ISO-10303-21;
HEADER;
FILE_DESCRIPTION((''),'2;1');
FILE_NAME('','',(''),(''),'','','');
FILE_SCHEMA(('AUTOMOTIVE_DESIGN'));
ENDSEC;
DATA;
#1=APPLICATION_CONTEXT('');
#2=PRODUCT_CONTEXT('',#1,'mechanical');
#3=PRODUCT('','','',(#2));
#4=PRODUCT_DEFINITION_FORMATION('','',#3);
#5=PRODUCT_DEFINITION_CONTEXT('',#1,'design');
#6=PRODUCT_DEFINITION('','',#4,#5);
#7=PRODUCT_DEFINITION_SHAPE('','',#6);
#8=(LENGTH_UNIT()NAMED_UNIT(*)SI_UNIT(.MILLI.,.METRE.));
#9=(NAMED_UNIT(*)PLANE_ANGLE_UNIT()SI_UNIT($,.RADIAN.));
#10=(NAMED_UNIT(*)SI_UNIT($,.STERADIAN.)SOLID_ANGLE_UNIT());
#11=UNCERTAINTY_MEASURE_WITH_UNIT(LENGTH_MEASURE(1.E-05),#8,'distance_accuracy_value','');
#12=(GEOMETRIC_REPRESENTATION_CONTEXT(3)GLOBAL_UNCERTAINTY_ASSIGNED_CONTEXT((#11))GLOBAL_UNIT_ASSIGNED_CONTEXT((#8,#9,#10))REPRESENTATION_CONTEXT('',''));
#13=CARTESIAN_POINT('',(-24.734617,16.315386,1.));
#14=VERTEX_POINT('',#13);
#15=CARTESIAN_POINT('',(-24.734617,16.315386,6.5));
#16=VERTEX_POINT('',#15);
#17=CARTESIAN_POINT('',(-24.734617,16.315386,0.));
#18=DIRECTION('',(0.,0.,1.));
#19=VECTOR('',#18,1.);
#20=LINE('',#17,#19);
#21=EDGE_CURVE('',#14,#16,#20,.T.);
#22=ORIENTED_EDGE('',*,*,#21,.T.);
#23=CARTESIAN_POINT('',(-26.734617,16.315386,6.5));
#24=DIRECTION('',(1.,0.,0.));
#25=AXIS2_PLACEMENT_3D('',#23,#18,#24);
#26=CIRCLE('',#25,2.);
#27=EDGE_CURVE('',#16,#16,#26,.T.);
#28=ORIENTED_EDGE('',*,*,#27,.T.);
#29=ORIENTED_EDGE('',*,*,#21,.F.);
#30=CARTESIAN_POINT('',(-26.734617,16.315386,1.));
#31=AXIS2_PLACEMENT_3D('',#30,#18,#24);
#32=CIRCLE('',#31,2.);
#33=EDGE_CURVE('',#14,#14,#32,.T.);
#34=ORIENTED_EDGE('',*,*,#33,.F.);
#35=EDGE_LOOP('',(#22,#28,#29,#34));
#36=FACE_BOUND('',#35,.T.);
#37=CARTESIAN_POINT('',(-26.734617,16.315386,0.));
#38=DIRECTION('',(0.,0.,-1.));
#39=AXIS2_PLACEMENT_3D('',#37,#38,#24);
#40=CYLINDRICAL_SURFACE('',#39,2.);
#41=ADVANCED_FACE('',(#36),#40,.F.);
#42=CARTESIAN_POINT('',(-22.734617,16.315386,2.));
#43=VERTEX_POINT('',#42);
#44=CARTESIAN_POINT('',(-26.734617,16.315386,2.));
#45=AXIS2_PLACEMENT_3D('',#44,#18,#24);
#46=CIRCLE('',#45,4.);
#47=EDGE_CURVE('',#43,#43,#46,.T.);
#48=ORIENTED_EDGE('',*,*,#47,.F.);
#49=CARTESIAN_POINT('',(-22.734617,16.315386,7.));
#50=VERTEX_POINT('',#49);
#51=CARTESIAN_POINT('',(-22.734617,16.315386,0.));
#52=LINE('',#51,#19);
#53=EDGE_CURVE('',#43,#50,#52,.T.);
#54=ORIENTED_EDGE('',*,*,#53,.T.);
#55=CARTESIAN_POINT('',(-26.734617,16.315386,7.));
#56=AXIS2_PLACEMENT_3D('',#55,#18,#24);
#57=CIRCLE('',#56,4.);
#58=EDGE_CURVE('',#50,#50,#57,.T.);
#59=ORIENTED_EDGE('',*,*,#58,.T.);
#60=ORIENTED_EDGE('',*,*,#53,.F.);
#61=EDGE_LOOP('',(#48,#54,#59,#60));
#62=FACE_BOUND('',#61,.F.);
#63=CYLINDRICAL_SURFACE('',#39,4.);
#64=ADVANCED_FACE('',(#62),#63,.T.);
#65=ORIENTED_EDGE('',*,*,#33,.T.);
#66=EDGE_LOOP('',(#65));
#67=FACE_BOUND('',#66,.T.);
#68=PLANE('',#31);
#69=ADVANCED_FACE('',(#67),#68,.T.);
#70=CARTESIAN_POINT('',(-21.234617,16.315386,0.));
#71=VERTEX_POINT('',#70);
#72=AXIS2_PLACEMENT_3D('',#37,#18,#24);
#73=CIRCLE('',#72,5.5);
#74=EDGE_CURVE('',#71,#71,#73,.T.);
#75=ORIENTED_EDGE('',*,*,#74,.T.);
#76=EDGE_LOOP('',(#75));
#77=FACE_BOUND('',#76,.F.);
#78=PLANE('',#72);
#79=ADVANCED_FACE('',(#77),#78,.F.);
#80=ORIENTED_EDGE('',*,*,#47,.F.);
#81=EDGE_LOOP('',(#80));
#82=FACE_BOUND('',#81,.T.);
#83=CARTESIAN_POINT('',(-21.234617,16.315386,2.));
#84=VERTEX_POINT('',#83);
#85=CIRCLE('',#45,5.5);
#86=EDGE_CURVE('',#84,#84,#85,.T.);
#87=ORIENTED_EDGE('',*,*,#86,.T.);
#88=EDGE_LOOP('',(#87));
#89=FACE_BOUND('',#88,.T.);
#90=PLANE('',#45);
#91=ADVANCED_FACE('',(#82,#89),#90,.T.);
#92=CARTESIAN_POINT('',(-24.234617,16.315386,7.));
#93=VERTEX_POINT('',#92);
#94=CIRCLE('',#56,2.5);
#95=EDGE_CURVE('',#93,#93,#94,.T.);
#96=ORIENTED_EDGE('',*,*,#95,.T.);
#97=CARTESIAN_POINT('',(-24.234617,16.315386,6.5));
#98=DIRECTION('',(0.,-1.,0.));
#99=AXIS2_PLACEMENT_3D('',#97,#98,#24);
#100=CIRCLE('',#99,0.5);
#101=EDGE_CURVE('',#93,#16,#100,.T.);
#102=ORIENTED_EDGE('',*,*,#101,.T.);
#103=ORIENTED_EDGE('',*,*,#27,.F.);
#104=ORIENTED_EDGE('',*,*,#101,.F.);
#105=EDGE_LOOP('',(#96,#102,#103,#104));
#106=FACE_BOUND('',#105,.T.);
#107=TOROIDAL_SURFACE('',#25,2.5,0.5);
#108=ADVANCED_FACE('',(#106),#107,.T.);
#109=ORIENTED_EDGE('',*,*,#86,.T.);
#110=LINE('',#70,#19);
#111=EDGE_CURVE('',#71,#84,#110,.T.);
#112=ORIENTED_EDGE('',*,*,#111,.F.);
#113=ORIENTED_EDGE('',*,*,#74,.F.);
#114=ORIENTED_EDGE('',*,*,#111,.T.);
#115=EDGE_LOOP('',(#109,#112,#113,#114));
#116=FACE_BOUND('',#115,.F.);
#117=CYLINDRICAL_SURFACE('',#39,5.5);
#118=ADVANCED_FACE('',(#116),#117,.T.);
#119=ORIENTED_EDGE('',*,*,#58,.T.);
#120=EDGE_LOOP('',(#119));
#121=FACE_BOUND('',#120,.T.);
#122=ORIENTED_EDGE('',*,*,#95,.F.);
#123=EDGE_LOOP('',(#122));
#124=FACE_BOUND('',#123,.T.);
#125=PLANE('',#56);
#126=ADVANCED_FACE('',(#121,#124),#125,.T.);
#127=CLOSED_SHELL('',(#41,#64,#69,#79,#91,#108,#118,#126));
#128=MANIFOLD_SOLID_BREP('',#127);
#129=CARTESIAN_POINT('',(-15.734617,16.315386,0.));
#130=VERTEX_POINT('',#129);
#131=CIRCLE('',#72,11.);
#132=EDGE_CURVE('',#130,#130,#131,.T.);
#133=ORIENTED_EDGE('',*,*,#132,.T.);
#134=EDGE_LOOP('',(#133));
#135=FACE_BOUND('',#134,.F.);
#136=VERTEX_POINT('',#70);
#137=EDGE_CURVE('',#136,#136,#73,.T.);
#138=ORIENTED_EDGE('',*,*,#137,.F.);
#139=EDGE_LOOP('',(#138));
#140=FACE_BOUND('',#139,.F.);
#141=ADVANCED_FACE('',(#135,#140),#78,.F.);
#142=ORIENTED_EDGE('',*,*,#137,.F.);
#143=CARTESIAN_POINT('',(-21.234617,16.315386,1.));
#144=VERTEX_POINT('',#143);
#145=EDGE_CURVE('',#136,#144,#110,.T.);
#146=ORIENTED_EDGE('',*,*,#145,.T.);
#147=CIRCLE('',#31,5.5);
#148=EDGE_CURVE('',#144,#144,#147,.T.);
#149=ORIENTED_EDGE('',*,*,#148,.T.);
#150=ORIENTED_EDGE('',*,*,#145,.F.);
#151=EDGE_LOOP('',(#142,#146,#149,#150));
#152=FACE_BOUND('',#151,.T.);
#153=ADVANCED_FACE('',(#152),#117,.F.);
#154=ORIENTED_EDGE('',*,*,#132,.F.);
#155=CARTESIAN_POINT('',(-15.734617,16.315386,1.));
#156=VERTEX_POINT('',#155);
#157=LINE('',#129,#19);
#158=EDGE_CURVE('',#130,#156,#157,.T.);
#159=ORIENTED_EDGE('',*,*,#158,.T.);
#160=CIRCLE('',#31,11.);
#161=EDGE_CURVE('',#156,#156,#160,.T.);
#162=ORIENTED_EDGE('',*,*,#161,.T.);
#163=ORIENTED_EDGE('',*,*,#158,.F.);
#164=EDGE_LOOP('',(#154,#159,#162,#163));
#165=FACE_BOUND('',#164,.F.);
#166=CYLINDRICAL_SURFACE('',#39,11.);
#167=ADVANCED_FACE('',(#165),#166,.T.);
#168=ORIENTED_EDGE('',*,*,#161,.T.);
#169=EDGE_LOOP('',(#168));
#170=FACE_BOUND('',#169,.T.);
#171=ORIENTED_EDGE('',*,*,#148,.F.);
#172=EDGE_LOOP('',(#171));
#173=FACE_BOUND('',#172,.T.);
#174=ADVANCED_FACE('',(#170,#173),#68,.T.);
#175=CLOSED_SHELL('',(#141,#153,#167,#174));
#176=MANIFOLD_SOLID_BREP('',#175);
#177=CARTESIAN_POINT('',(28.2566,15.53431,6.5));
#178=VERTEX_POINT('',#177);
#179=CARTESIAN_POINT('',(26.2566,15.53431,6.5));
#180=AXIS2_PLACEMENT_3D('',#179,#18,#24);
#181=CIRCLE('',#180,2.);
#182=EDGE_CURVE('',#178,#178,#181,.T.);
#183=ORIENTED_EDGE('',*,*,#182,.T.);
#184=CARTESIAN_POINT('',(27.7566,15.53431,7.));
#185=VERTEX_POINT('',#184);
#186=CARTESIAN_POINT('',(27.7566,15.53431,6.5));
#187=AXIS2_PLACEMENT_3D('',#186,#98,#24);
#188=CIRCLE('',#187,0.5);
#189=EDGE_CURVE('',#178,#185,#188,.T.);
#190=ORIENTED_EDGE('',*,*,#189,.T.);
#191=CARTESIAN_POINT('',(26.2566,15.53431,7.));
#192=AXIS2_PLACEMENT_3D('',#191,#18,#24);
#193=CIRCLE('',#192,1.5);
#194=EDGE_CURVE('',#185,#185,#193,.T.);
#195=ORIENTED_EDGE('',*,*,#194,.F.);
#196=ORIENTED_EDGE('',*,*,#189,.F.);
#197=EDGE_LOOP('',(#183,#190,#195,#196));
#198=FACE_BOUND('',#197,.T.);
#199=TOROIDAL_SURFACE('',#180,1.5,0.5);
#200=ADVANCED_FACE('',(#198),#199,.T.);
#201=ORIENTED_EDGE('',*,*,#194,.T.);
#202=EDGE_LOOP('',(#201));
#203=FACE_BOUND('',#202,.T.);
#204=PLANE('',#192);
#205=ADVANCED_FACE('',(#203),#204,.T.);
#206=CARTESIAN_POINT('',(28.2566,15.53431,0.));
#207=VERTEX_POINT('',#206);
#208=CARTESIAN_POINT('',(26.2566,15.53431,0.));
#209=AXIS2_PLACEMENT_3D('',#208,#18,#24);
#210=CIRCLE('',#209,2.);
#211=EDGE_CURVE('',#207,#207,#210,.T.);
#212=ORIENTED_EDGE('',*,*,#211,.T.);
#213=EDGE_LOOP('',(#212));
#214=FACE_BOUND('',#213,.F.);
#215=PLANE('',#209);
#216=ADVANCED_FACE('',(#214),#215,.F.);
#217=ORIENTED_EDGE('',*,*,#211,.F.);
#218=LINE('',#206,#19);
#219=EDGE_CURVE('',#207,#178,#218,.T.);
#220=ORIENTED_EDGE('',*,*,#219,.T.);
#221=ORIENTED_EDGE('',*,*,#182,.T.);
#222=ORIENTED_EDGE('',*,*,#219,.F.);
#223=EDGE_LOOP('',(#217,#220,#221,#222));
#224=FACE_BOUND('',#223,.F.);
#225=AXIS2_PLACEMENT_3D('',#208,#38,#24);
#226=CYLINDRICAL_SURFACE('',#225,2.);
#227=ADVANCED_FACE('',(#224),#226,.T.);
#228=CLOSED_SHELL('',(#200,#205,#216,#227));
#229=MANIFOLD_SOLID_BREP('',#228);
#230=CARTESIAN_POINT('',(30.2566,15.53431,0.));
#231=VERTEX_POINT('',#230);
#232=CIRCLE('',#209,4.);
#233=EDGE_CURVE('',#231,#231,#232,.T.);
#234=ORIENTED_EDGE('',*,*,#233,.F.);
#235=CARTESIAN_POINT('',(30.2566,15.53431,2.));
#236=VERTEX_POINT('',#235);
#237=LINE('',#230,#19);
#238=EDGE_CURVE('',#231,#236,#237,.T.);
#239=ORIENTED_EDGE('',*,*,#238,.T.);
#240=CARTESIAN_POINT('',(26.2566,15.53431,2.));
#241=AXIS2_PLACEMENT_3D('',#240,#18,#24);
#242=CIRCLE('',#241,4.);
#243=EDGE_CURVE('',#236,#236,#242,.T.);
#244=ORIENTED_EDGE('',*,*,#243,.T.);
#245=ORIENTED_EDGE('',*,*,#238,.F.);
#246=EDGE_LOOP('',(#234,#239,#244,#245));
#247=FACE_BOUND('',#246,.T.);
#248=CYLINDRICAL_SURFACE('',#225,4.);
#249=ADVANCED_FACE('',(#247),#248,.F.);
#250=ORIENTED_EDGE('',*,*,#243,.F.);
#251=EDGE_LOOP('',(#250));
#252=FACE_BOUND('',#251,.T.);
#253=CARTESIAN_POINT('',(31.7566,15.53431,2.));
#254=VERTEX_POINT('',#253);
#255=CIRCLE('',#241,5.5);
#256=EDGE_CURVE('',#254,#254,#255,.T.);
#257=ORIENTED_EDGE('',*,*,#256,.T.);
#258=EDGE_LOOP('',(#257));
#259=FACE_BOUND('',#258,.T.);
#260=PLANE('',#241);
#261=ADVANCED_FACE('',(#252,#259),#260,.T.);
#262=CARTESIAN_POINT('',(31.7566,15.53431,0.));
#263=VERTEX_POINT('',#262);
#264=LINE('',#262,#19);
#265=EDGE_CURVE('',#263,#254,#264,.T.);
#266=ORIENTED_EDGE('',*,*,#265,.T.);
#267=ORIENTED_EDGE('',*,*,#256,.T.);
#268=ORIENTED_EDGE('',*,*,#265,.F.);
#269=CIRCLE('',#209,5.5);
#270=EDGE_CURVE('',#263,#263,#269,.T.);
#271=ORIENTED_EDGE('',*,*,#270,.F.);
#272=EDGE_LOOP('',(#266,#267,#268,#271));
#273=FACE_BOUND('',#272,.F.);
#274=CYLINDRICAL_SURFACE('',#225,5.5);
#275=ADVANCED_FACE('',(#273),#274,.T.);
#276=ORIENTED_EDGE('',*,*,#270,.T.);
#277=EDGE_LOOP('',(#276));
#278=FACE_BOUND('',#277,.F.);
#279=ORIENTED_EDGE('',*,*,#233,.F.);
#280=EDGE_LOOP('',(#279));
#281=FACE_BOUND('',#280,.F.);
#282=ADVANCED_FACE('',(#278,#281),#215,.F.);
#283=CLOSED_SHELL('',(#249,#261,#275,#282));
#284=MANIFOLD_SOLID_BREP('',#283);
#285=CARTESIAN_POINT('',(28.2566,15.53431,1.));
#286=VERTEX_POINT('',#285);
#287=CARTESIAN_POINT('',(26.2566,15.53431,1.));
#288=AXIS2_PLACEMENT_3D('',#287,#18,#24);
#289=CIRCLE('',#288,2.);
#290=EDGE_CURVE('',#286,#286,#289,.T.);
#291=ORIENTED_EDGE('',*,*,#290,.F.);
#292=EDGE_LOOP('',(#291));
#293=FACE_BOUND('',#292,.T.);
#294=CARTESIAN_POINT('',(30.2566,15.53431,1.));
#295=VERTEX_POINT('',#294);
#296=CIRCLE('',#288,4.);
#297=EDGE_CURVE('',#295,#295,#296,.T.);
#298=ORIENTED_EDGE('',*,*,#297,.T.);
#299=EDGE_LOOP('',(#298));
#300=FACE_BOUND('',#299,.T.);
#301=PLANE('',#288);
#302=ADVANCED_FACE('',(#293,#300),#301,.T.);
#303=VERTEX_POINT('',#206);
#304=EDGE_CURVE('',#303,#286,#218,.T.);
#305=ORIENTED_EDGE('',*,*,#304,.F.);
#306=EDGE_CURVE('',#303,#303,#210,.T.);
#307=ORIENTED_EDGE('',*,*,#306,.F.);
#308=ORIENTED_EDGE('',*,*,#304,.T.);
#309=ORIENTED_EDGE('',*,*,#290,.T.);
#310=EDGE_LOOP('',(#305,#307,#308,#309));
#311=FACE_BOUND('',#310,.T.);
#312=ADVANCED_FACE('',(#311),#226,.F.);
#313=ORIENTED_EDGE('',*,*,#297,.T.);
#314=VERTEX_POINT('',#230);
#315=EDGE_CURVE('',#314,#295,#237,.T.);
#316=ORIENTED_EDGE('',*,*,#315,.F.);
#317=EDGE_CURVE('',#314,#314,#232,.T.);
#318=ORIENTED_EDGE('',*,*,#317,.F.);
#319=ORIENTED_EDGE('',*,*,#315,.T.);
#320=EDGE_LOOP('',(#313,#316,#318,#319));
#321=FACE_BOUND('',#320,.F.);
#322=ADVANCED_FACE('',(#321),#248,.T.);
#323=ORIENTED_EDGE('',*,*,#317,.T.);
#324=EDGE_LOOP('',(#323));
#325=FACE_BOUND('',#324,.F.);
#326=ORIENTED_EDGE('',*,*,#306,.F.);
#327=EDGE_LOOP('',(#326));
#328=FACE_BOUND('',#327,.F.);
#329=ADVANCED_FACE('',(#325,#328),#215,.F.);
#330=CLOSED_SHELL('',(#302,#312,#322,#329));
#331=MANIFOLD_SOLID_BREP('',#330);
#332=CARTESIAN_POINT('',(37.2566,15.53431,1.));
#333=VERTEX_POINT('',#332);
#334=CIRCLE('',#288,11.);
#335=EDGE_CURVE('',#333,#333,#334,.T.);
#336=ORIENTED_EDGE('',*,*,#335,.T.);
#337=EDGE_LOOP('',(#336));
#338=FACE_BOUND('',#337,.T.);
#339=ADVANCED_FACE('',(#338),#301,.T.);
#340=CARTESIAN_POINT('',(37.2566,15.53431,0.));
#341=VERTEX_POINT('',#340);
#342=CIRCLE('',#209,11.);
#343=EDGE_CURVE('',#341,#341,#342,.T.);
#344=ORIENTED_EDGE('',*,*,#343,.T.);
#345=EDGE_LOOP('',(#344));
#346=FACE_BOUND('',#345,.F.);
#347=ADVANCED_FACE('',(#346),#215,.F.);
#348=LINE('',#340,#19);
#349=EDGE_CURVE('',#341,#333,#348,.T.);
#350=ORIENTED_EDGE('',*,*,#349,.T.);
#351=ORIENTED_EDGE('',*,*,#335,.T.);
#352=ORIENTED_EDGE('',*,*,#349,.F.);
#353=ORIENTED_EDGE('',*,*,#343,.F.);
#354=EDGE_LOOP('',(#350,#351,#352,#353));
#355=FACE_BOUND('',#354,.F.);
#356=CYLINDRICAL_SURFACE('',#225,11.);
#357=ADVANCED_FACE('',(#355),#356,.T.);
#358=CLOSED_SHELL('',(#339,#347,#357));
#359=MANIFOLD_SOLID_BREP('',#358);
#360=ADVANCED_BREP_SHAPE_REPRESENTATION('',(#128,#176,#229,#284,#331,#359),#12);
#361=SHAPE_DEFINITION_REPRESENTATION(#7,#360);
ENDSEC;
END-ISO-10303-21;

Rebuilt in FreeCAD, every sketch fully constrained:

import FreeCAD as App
import Part
import Sketcher
from FreeCAD import Vector
Q = App.Units.Quantity


def edges_at(feature, points):
    """Names of the edges that pass closest to the given points."""
    edges = feature.Shape.Edges
    near = lambda p: min(range(len(edges)), key=lambda i: edges[i].distToShape(Part.Vertex(*p))[0])
    return sorted({f"Edge{near(p) + 1}" for p in points})

doc = App.newDocument("Part")
body = doc.addObject("PartDesign::Body", "Body")

# Sketch on XY plane
sketch1 = body.newObject("Sketcher::SketchObject", "Sketch")
sketch1.AttachmentSupport = (doc.getObject("XY_Plane"), [""])
sketch1.MapMode = "FlatFace"
sketch1.addGeometry([
    Part.Circle(Vector(-27, 16, 0), Vector(0, 0, 1), 11),
    Part.Circle(Vector(-27, 16, 0), Vector(0, 0, 1), 6),
], False)
sketch1.addConstraint([
    Sketcher.Constraint("Coincident", 1, 3, 0, 3),
    Sketcher.Constraint("Diameter", 0, Q("22 mm")),
    Sketcher.Constraint("Diameter", 1, Q("11 mm")),
    Sketcher.Constraint("DistanceX", 0, 3, -1, 1, Q("26.734617 mm")),
    Sketcher.Constraint("DistanceY", -1, 1, 0, 3, Q("16.315386 mm")),
])
pad1 = body.newObject("PartDesign::Pad", "Pad")
pad1.Profile = sketch1
pad1.Length = 1
body2 = doc.addObject("PartDesign::Body", "Body001")

# Sketch on XY plane
sketch2 = body2.newObject("Sketcher::SketchObject", "Sketch001")
sketch2.AttachmentSupport = (doc.getObject("XY_Plane001"), [""])
sketch2.MapMode = "FlatFace"
sketch2.addGeometry(Part.Circle(Vector(26, 16, 0), Vector(0, 0, 1), 11), False)
sketch2.addConstraint([
    Sketcher.Constraint("Diameter", 0, Q("22 mm")),
    Sketcher.Constraint("DistanceX", -1, 1, 0, 3, Q("26.2566 mm")),
    Sketcher.Constraint("DistanceY", -1, 1, 0, 3, Q("15.53431 mm")),
])
pad2 = body2.newObject("PartDesign::Pad", "Pad001")
pad2.Profile = sketch2
pad2.Length = 1
body3 = doc.addObject("PartDesign::Body", "Body002")

# Sketch on XY plane
sketch3 = body3.newObject("Sketcher::SketchObject", "Sketch002")
sketch3.AttachmentSupport = (doc.getObject("XY_Plane002"), [""])
sketch3.MapMode = "FlatFace"
sketch3.addGeometry([
    Part.Circle(Vector(-26.7, 16.3, 0), Vector(0, 0, 1), 5.5),
    Part.Circle(Vector(-26.7, 16.3, 0), Vector(0, 0, 1), 4),
], False)
sketch3.addConstraint([
    Sketcher.Constraint("Coincident", 1, 3, 0, 3),
    Sketcher.Constraint("Diameter", 0, Q("11 mm")),
    Sketcher.Constraint("Diameter", 1, Q("8 mm")),
    Sketcher.Constraint("DistanceX", 0, 3, -1, 1, Q("26.734617 mm")),
    Sketcher.Constraint("DistanceY", -1, 1, 0, 3, Q("16.315386 mm")),
])
pad3 = body3.newObject("PartDesign::Pad", "Pad002")
pad3.Profile = sketch3
pad3.Length = 2

# Sketch on XY plane
sketch4 = body3.newObject("Sketcher::SketchObject", "Sketch003")
sketch4.AttachmentSupport = (doc.getObject("XY_Plane002"), [""])
sketch4.MapMode = "FlatFace"
sketch4.addGeometry([
    Part.Circle(Vector(-26.7, 16.3, 0), Vector(0, 0, 1), 4),
    Part.Circle(Vector(-26.7, 16.3, 0), Vector(0, 0, 1), 2),
], False)
sketch4.addConstraint([
    Sketcher.Constraint("Coincident", 1, 3, 0, 3),
    Sketcher.Constraint("Diameter", 0, Q("8 mm")),
    Sketcher.Constraint("Diameter", 1, Q("4 mm")),
    Sketcher.Constraint("DistanceX", 0, 3, -1, 1, Q("26.734617 mm")),
    Sketcher.Constraint("DistanceY", -1, 1, 0, 3, Q("16.315386 mm")),
])
pad4 = body3.newObject("PartDesign::Pad", "Pad003")
pad4.Profile = sketch4
pad4.Length = 7

# Sketch on XY plane
sketch5 = body3.newObject("Sketcher::SketchObject", "Sketch004")
sketch5.AttachmentSupport = (doc.getObject("XY_Plane002"), [""])
sketch5.MapMode = "FlatFace"
sketch5.addGeometry(Part.Circle(Vector(-26.7, 16.3, 0), Vector(0, 0, 1), 2), False)
sketch5.addConstraint([
    Sketcher.Constraint("Diameter", 0, Q("4 mm")),
    Sketcher.Constraint("DistanceX", 0, 3, -1, 1, Q("26.734617 mm")),
    Sketcher.Constraint("DistanceY", -1, 1, 0, 3, Q("16.315386 mm")),
])
pad5 = body3.newObject("PartDesign::Pad", "Pad004")
pad5.Profile = sketch5
pad5.Length = 1
doc.recompute()

fillet = body3.newObject("PartDesign::Fillet", "Fillet")
fillet.Base = (pad5, edges_at(pad5, [(-28.735, 16.315, 7)]))
fillet.Radius = 0.5
body4 = doc.addObject("PartDesign::Body", "Body003")

# Sketch on XY plane
sketch6 = body4.newObject("Sketcher::SketchObject", "Sketch005")
sketch6.AttachmentSupport = (doc.getObject("XY_Plane003"), [""])
sketch6.MapMode = "FlatFace"
sketch6.addGeometry([
    Part.Circle(Vector(26.3, 15.5, 0), Vector(0, 0, 1), 5.5),
    Part.Circle(Vector(26.3, 15.5, 0), Vector(0, 0, 1), 4),
], False)
sketch6.addConstraint([
    Sketcher.Constraint("Coincident", 1, 3, 0, 3),
    Sketcher.Constraint("Diameter", 0, Q("11 mm")),
    Sketcher.Constraint("Diameter", 1, Q("8 mm")),
    Sketcher.Constraint("DistanceX", -1, 1, 0, 3, Q("26.2566 mm")),
    Sketcher.Constraint("DistanceY", -1, 1, 0, 3, Q("15.53431 mm")),
])
pad6 = body4.newObject("PartDesign::Pad", "Pad005")
pad6.Profile = sketch6
pad6.Length = 2
body5 = doc.addObject("PartDesign::Body", "Body004")

# Sketch on XY plane
sketch7 = body5.newObject("Sketcher::SketchObject", "Sketch006")
sketch7.AttachmentSupport = (doc.getObject("XY_Plane004"), [""])
sketch7.MapMode = "FlatFace"
sketch7.addGeometry(Part.Circle(Vector(26.3, 15.5, 0), Vector(0, 0, 1), 2), False)
sketch7.addConstraint([
    Sketcher.Constraint("Diameter", 0, Q("4 mm")),
    Sketcher.Constraint("DistanceX", -1, 1, 0, 3, Q("26.2566 mm")),
    Sketcher.Constraint("DistanceY", -1, 1, 0, 3, Q("15.53431 mm")),
])
pad7 = body5.newObject("PartDesign::Pad", "Pad006")
pad7.Profile = sketch7
pad7.Length = 7
doc.recompute()

fillet2 = body5.newObject("PartDesign::Fillet", "Fillet001")
fillet2.Base = (pad7, edges_at(pad7, [(24.257, 15.534, 7)]))
fillet2.Radius = 0.5
body6 = doc.addObject("PartDesign::Body", "Body005")

# Sketch on XY plane
sketch8 = body6.newObject("Sketcher::SketchObject", "Sketch007")
sketch8.AttachmentSupport = (doc.getObject("XY_Plane005"), [""])
sketch8.MapMode = "FlatFace"
sketch8.addGeometry([
    Part.Circle(Vector(26.3, 15.5, 0), Vector(0, 0, 1), 4),
    Part.Circle(Vector(26.3, 15.5, 0), Vector(0, 0, 1), 2),
], False)
sketch8.addConstraint([
    Sketcher.Constraint("Coincident", 1, 3, 0, 3),
    Sketcher.Constraint("Diameter", 0, Q("8 mm")),
    Sketcher.Constraint("Diameter", 1, Q("4 mm")),
    Sketcher.Constraint("DistanceX", -1, 1, 0, 3, Q("26.2566 mm")),
    Sketcher.Constraint("DistanceY", -1, 1, 0, 3, Q("15.53431 mm")),
])
pad8 = body6.newObject("PartDesign::Pad", "Pad007")
pad8.Profile = sketch8
pad8.Length = 1

doc.recompute()
